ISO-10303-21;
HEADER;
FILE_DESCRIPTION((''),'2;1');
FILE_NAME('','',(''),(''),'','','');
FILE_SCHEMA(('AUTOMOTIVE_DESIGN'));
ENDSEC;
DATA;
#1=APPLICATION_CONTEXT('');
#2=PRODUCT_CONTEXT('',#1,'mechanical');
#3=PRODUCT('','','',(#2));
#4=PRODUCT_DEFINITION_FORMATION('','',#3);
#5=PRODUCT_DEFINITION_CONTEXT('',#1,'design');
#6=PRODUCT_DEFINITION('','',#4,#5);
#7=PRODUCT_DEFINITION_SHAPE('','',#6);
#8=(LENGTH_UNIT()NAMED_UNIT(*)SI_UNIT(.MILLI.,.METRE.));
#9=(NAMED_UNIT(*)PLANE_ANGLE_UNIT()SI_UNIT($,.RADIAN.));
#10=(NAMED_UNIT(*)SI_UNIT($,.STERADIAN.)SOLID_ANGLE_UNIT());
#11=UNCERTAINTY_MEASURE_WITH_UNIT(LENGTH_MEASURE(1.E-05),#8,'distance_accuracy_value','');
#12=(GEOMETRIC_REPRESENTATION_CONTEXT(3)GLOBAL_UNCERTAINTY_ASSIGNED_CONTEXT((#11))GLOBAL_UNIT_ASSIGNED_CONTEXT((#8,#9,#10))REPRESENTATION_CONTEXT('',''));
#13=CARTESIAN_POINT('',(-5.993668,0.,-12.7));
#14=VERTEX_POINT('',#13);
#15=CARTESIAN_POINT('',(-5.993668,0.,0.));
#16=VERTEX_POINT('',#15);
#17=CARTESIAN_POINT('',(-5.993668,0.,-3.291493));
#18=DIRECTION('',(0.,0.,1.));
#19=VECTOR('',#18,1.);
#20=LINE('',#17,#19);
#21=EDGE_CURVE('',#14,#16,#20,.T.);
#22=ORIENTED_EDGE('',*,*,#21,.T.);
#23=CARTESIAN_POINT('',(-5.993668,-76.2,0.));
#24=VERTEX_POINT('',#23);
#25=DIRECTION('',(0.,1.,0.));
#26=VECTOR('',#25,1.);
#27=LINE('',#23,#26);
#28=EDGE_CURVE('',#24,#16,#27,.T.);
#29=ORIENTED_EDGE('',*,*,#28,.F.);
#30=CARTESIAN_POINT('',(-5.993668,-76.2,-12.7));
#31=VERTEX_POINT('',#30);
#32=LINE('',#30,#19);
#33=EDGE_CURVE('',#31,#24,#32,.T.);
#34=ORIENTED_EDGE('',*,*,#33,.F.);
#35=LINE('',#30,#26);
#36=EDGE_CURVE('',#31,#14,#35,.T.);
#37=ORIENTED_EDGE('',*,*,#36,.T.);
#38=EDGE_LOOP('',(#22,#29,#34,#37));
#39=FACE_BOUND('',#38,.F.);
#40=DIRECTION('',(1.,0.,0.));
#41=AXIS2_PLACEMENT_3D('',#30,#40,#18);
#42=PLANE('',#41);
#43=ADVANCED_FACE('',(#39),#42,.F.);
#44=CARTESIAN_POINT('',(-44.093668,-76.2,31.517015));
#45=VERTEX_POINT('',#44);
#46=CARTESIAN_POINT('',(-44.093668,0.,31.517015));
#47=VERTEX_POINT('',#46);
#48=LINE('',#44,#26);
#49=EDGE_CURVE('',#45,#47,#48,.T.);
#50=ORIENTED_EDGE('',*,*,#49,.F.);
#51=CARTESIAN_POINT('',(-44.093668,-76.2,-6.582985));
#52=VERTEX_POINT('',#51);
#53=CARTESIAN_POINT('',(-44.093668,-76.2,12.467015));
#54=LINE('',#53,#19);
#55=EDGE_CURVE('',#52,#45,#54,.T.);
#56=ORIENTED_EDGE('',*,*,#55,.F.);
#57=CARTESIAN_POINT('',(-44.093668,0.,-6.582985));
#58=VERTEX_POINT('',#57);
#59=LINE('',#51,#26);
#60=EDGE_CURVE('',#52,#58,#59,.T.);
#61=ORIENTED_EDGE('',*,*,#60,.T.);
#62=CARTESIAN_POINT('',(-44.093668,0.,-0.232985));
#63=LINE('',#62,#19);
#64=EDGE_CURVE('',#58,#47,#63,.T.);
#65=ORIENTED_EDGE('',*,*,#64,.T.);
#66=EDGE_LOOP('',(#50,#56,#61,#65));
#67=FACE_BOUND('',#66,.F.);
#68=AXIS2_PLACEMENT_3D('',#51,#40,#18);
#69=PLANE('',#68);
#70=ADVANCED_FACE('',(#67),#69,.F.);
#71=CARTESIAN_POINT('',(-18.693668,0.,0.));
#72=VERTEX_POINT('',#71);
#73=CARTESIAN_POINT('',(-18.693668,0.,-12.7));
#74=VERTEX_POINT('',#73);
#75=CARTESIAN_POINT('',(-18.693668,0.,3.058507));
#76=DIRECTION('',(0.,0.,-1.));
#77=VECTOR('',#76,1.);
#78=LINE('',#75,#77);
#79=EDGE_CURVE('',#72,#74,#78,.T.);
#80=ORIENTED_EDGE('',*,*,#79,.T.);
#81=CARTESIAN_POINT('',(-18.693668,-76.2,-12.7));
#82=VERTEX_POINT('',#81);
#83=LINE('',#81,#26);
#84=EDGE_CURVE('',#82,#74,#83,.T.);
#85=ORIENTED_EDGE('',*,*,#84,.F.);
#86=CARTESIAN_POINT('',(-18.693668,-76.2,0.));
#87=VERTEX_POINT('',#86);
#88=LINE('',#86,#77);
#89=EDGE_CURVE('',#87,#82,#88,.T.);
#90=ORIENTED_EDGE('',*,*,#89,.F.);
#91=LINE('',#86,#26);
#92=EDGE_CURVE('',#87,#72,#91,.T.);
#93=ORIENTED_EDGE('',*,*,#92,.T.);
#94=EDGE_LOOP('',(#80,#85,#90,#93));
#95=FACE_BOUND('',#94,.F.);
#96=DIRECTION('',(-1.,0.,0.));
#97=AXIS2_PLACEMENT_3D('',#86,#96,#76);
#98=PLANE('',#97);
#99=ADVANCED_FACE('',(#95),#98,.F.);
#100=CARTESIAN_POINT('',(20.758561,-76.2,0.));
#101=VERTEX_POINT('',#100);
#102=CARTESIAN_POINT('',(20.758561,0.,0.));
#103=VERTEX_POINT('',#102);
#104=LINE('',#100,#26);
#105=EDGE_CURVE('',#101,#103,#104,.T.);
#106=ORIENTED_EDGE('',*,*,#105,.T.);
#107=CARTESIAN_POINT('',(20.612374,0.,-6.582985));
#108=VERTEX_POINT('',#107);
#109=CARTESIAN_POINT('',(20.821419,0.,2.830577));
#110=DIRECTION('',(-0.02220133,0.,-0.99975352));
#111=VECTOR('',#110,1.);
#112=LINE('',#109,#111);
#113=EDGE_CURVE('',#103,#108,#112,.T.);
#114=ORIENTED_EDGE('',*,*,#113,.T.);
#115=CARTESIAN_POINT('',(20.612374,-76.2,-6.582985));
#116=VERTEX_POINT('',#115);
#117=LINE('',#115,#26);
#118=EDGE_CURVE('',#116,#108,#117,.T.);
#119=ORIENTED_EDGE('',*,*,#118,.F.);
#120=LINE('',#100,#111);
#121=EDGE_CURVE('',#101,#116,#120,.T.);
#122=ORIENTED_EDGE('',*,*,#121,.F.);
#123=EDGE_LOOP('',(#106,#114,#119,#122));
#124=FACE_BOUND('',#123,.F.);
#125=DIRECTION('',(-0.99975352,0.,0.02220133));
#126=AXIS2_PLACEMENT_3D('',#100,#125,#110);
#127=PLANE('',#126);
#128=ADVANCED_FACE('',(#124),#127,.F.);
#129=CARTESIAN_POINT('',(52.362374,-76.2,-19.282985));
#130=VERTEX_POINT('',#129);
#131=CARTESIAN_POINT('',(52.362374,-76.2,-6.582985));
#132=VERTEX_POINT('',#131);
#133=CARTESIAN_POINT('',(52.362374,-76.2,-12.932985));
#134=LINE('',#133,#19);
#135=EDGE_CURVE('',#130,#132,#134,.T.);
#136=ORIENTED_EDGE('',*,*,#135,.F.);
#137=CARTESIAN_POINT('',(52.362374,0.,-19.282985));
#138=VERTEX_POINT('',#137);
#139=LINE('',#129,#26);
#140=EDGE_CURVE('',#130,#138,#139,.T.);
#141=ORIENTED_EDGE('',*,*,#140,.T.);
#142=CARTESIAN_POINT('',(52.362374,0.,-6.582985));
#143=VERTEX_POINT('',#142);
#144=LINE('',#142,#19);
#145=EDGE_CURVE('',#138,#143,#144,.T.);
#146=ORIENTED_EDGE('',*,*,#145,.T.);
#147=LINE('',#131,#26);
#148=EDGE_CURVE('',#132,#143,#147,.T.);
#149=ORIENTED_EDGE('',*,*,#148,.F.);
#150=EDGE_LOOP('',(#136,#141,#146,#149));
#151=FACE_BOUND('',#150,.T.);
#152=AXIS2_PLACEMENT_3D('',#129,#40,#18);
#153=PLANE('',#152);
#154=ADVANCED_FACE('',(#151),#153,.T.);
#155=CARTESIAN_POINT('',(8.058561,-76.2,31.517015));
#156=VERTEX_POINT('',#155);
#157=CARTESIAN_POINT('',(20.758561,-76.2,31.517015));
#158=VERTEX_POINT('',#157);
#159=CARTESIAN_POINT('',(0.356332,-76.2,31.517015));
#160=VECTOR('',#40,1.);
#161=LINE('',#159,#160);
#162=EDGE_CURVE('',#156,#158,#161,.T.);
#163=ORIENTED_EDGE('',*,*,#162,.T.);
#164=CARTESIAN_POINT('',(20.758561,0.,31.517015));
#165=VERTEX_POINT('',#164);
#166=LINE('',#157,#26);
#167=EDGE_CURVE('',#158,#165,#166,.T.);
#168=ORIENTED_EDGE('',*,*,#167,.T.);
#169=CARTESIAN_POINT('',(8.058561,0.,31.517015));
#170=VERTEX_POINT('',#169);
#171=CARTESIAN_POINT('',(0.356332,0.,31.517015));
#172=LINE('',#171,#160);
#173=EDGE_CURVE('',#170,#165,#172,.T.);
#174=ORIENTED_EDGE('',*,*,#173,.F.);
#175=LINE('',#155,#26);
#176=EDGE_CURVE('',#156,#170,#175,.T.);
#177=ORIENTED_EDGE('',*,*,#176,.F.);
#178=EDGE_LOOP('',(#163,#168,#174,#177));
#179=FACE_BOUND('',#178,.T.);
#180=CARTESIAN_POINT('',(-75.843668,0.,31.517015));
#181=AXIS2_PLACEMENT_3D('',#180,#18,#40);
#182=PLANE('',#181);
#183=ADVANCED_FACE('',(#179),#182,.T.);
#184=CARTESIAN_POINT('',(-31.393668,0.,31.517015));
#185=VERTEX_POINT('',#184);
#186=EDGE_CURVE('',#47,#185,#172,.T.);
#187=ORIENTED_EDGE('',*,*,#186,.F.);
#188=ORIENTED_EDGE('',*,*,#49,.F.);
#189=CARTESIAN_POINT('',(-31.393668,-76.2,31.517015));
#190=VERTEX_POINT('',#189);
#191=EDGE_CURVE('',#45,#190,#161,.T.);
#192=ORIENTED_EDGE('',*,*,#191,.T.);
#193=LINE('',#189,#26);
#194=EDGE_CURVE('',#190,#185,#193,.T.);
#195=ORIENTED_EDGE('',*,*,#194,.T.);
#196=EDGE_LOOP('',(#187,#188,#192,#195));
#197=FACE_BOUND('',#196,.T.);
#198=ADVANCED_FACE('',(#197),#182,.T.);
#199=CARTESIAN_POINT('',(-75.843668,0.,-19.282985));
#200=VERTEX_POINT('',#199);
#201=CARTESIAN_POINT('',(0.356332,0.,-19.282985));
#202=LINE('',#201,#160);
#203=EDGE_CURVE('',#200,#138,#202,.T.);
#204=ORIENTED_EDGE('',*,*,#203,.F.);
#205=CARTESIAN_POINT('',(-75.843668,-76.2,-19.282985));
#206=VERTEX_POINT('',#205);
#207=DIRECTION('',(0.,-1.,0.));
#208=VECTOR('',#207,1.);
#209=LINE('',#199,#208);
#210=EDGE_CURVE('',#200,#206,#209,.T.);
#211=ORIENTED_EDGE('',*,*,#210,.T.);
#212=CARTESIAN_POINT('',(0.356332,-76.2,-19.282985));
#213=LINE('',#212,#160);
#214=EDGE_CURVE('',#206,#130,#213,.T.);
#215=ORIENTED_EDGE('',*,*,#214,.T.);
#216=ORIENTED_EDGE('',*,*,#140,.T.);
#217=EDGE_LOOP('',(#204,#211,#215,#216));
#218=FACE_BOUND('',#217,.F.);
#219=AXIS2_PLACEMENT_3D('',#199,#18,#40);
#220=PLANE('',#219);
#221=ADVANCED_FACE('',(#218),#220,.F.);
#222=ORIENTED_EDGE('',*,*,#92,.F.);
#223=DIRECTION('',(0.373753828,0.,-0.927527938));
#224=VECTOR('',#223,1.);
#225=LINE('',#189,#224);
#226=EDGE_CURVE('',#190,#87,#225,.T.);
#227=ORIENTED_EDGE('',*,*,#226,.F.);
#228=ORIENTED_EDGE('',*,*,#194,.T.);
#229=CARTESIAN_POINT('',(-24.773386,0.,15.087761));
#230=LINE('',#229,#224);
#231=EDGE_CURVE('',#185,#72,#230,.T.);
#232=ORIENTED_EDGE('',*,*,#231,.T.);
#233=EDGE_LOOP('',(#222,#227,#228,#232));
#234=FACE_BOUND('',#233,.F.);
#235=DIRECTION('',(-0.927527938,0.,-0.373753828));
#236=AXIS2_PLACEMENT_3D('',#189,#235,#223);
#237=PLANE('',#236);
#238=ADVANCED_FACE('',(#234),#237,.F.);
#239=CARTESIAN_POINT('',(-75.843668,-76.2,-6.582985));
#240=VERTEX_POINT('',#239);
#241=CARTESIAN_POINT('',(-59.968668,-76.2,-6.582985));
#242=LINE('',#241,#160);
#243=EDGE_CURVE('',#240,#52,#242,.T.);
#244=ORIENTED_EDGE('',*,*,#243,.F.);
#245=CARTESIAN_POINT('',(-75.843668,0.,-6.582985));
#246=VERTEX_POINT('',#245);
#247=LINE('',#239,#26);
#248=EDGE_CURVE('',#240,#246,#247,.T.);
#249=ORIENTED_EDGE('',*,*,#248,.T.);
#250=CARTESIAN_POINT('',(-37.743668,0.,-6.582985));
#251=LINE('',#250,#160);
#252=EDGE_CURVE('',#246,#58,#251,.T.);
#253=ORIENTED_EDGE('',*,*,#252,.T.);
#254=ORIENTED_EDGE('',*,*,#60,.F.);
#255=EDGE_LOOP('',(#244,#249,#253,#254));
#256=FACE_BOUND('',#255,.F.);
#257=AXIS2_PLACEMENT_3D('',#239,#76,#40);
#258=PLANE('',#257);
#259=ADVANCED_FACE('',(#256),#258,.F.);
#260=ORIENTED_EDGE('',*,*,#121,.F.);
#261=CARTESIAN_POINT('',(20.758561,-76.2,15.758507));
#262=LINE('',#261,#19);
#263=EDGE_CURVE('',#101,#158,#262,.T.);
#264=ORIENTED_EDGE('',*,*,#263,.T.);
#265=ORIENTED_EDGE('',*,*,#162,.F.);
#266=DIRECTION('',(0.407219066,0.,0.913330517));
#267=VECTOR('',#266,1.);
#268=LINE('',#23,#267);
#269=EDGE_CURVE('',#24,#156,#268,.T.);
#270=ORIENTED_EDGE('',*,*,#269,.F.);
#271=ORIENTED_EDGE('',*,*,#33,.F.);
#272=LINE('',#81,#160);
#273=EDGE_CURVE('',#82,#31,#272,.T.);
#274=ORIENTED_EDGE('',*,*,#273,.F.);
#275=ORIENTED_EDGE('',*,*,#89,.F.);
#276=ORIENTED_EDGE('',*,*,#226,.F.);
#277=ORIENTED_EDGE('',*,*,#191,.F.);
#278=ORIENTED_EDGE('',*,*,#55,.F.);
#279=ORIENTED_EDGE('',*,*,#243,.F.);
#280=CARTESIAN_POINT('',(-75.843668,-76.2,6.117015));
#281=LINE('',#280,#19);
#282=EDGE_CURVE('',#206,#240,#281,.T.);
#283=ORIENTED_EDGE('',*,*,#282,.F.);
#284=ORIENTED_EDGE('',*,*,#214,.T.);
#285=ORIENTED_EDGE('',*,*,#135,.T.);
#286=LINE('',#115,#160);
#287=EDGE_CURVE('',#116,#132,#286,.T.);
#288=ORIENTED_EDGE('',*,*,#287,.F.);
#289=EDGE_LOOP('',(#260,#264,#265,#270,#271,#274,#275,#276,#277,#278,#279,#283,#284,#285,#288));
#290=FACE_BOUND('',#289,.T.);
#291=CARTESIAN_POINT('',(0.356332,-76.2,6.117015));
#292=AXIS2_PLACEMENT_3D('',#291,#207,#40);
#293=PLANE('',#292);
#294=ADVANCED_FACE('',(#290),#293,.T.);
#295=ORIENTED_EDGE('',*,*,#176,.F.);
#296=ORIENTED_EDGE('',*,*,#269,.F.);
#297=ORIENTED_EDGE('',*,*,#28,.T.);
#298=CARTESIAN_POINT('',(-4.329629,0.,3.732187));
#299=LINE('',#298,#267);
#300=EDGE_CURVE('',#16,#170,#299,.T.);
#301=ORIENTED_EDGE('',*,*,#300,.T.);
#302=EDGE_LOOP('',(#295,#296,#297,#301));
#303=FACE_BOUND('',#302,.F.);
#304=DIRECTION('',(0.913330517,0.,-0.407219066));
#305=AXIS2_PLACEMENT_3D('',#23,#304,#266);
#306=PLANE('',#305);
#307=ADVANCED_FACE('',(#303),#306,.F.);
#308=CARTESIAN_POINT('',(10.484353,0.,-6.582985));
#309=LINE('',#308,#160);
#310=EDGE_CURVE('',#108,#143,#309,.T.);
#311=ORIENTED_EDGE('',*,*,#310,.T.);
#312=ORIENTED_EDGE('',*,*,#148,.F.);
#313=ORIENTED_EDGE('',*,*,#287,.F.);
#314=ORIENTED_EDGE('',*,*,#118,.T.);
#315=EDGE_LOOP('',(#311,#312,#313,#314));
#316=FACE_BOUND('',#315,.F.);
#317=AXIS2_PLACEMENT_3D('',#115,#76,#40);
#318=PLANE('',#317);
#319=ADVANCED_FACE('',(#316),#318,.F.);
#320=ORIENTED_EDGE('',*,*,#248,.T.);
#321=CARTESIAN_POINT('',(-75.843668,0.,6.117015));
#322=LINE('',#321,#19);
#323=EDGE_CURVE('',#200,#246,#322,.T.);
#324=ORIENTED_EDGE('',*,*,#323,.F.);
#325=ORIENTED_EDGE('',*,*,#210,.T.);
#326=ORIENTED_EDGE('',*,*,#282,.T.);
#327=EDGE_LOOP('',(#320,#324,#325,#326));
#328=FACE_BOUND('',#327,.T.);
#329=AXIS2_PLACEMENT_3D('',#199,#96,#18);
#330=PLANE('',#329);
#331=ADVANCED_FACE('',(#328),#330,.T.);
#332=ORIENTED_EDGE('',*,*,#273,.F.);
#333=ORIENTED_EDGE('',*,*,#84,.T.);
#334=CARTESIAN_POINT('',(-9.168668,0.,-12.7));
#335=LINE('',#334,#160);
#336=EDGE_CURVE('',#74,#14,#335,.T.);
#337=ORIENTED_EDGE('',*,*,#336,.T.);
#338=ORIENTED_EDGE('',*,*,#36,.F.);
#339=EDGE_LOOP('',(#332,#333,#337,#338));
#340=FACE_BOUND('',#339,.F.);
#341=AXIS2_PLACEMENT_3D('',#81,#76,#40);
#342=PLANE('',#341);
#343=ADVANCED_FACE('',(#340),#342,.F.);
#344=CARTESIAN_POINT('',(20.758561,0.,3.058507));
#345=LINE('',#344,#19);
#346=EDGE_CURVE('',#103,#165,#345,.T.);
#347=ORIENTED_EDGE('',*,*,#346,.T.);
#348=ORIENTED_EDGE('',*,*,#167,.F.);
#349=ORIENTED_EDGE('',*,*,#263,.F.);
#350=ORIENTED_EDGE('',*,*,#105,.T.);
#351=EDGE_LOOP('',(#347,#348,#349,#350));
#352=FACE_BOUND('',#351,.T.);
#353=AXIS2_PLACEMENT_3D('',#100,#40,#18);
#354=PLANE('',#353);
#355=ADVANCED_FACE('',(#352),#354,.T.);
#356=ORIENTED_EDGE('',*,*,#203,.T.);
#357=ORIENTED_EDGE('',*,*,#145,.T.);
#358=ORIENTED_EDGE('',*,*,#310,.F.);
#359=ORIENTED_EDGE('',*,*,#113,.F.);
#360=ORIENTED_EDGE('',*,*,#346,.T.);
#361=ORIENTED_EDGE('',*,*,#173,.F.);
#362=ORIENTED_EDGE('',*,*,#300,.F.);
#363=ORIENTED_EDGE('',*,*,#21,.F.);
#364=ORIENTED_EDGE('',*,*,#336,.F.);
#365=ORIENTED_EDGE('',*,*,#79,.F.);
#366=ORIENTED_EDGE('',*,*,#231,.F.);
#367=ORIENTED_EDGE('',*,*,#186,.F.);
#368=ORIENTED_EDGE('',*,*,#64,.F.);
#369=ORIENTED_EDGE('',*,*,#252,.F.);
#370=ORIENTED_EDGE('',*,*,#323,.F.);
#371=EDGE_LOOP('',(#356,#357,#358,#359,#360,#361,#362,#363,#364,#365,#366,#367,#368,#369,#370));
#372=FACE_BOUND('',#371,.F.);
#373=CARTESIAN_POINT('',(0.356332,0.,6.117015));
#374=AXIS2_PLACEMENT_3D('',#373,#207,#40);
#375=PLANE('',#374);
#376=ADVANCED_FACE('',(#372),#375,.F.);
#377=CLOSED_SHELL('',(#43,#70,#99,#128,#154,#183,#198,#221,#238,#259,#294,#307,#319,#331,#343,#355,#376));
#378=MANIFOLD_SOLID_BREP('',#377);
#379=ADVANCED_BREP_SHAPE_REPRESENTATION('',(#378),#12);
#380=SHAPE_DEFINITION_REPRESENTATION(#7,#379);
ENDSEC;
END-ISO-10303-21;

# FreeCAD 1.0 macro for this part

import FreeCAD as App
import Part
import Sketcher
Q = App.Units.Quantity


def add_polygon(sketch, points):
    """Adds a closed chain of lines whose ends are joined by coincident constraints."""
    first, n = sketch.GeometryCount, len(points)
    for a, b in zip(points, points[1:] + points[:1]):
        sketch.addGeometry(Part.LineSegment(App.Vector(*a, 0), App.Vector(*b, 0)), False)
    for i in range(n):
        sketch.addConstraint(Sketcher.Constraint("Coincident", first + i, 2, first + (i + 1) % n, 1))

doc = App.newDocument("Part")
body = doc.addObject("PartDesign::Body", "Body")

# Sketch on XZ plane
sketch1 = body.newObject("Sketcher::SketchObject", "Sketch")
sketch1.AttachmentSupport = (doc.getObject("XZ_Plane"), [""])
sketch1.MapMode = "FlatFace"
add_polygon(sketch1, [(-76, 32), (-76, -19), (77, -19), (77, 32)])  # lines 0-3
sketch1.addConstraint([
    Sketcher.Constraint("Vertical", 0),
    Sketcher.Constraint("Horizontal", 1),
    Sketcher.Constraint("Vertical", 2),
    Sketcher.Constraint("Horizontal", 3),
    Sketcher.Constraint("DistanceX", 1, 1, 1, 2, Q("6 in")),
    Sketcher.Constraint("DistanceY", 0, 2, 0, 1, Q("2 in")),
    Sketcher.Constraint("DistanceX", 0, 2, -1, 1, Q("75.843668 mm")),
    Sketcher.Constraint("DistanceY", 0, 2, -1, 1, Q("19.282985 mm")),
])
pad1 = body.newObject("PartDesign::Pad", "Pad")
pad1.Profile = sketch1
pad1.Length = Q("3 in")

# Sketch on XZ plane
sketch2 = body.newObject("Sketcher::SketchObject", "Sketch001")
sketch2.AttachmentSupport = (doc.getObject("XZ_Plane"), [""])
sketch2.MapMode = "FlatFace"
sketch2.AttachmentOffset = App.Placement(App.Vector(0, 0, 3 * 25.4), App.Rotation())
add_polygon(sketch2, [(-76, 32), (-76, -7), (-44, -7), (-44, 32)])  # lines 0-3
sketch2.addConstraint([
    Sketcher.Constraint("Vertical", 0),
    Sketcher.Constraint("Horizontal", 1),
    Sketcher.Constraint("Vertical", 2),
    Sketcher.Constraint("Horizontal", 3),
    Sketcher.Constraint("DistanceY", 0, 2, 0, 1, Q("1.5 in")),
    Sketcher.Constraint("DistanceX", 1, 1, 1, 2, Q("1.25 in")),
    Sketcher.Constraint("DistanceX", 0, 2, -1, 1, Q("75.843668 mm")),
    Sketcher.Constraint("DistanceY", 0, 2, -1, 1, Q("6.582985 mm")),
])
pocket1 = body.newObject("PartDesign::Pocket", "Pocket")
pocket1.Profile = sketch2
pocket1.Type = "ThroughAll"

# Sketch on XZ plane
sketch3 = body.newObject("Sketcher::SketchObject", "Sketch002")
sketch3.AttachmentSupport = (doc.getObject("XZ_Plane"), [""])
sketch3.MapMode = "FlatFace"
sketch3.AttachmentOffset = App.Placement(App.Vector(0, 0, 3 * 25.4), App.Rotation())
add_polygon(sketch3, [(8, 32), (-31, 32), (-19, 0), (-19, -13), (-6, -13), (-6, 0)])  # lines 0-5
sketch3.addConstraint([
    Sketcher.Constraint("Horizontal", 0),
    Sketcher.Constraint("Vertical", 2),
    Sketcher.Constraint("Horizontal", 3),
    Sketcher.Constraint("Vertical", 4),
    Sketcher.Constraint("PointOnObject", 1, 2, -1),
    Sketcher.Constraint("PointOnObject", 4, 2, -1),
    Sketcher.Constraint("Equal", 3, 2),
    Sketcher.Constraint("DistanceX", 3, 1, 3, 2, Q("0.5 in")),
    Sketcher.Constraint("DistanceX", 0, 2, 3, 2, Q("1 in")),
    Sketcher.Constraint("DistanceX", 0, 2, 0, 1, Q("39.452229 mm")),
    Sketcher.Constraint("DistanceX", -1, 1, 5, 2, Q("8.058561 mm")),
    Sketcher.Constraint("Distance", 1, Q("33.979585 mm")),
])
pocket2 = body.newObject("PartDesign::Pocket", "Pocket001")
pocket2.Profile = sketch3
pocket2.Type = "ThroughAll"

# Sketch on XZ plane
sketch4 = body.newObject("Sketcher::SketchObject", "Sketch003")
sketch4.AttachmentSupport = (doc.getObject("XZ_Plane"), [""])
sketch4.MapMode = "FlatFace"
sketch4.AttachmentOffset = App.Placement(App.Vector(0, 0, 3 * 25.4), App.Rotation())
add_polygon(sketch4, [(21, 32), (21, 0), (77, 0), (77, 32)])  # lines 0-3
sketch4.addConstraint([
    Sketcher.Constraint("Vertical", 0),
    Sketcher.Constraint("Horizontal", 1),
    Sketcher.Constraint("Vertical", 2),
    Sketcher.Constraint("Horizontal", 3),
    Sketcher.Constraint("PointOnObject", 0, 2, -1),
    Sketcher.Constraint("DistanceX", 1, 1, 1, 2, Q("55.797771 mm")),
    Sketcher.Constraint("DistanceY", 0, 2, 0, 1, Q("31.517015 mm")),
    Sketcher.Constraint("DistanceX", -1, 1, 0, 2, Q("20.758561 mm")),
])
pocket3 = body.newObject("PartDesign::Pocket", "Pocket002")
pocket3.Profile = sketch4
pocket3.Type = "ThroughAll"

# Sketch on XZ plane
sketch5 = body.newObject("Sketcher::SketchObject", "Sketch004")
sketch5.AttachmentSupport = (doc.getObject("XZ_Plane"), [""])
sketch5.MapMode = "FlatFace"
sketch5.AttachmentOffset = App.Placement(App.Vector(0, 0, 3 * 25.4), App.Rotation())
add_polygon(sketch5, [(21, 0), (21, -7), (77, -7), (77, 0)])  # lines 0-3
sketch5.addConstraint([
    Sketcher.Constraint("Horizontal", 1),
    Sketcher.Constraint("Vertical", 2),
    Sketcher.Constraint("Horizontal", 3),
    Sketcher.Constraint("PointOnObject", 2, 2, -1),
    Sketcher.Constraint("DistanceX", 1, 1, 1, 2, Q("55.943958 mm")),
    Sketcher.Constraint("DistanceX", 3, 2, 3, 1, Q("55.797771 mm")),
    Sketcher.Constraint("Distance", 0, Q("6.584608 mm")),
    Sketcher.Constraint("DistanceX", -1, 1, 3, 2, Q("20.758561 mm")),
])
pocket4 = body.newObject("PartDesign::Pocket", "Pocket003")
pocket4.Profile = sketch5
pocket4.Type = "ThroughAll"

# Sketch on XZ plane
sketch6 = body.newObject("Sketcher::SketchObject", "Sketch005")
sketch6.AttachmentSupport = (doc.getObject("XZ_Plane"), [""])
sketch6.MapMode = "FlatFace"
sketch6.AttachmentOffset = App.Placement(App.Vector(0, 0, 3 * 25.4), App.Rotation())
add_polygon(sketch6, [(52, -7), (52, -19), (77, -19), (77, -7)])  # lines 0-3
sketch6.addConstraint([
    Sketcher.Constraint("Vertical", 0),
    Sketcher.Constraint("Horizontal", 1),
    Sketcher.Constraint("Vertical", 2),
    Sketcher.Constraint("Horizontal", 3),
    Sketcher.Constraint("DistanceY", 0, 2, 0, 1, Q("0.5 in")),
    Sketcher.Constraint("DistanceX", 1, 1, 1, 2, Q("24.193958 mm")),
    Sketcher.Constraint("DistanceX", -1, 1, 0, 2, Q("52.362374 mm")),
    Sketcher.Constraint("DistanceY", 0, 2, -1, 1, Q("19.282985 mm")),
])
pocket5 = body.newObject("PartDesign::Pocket", "Pocket004")
pocket5.Profile = sketch6
pocket5.Type = "ThroughAll"

doc.recompute()
